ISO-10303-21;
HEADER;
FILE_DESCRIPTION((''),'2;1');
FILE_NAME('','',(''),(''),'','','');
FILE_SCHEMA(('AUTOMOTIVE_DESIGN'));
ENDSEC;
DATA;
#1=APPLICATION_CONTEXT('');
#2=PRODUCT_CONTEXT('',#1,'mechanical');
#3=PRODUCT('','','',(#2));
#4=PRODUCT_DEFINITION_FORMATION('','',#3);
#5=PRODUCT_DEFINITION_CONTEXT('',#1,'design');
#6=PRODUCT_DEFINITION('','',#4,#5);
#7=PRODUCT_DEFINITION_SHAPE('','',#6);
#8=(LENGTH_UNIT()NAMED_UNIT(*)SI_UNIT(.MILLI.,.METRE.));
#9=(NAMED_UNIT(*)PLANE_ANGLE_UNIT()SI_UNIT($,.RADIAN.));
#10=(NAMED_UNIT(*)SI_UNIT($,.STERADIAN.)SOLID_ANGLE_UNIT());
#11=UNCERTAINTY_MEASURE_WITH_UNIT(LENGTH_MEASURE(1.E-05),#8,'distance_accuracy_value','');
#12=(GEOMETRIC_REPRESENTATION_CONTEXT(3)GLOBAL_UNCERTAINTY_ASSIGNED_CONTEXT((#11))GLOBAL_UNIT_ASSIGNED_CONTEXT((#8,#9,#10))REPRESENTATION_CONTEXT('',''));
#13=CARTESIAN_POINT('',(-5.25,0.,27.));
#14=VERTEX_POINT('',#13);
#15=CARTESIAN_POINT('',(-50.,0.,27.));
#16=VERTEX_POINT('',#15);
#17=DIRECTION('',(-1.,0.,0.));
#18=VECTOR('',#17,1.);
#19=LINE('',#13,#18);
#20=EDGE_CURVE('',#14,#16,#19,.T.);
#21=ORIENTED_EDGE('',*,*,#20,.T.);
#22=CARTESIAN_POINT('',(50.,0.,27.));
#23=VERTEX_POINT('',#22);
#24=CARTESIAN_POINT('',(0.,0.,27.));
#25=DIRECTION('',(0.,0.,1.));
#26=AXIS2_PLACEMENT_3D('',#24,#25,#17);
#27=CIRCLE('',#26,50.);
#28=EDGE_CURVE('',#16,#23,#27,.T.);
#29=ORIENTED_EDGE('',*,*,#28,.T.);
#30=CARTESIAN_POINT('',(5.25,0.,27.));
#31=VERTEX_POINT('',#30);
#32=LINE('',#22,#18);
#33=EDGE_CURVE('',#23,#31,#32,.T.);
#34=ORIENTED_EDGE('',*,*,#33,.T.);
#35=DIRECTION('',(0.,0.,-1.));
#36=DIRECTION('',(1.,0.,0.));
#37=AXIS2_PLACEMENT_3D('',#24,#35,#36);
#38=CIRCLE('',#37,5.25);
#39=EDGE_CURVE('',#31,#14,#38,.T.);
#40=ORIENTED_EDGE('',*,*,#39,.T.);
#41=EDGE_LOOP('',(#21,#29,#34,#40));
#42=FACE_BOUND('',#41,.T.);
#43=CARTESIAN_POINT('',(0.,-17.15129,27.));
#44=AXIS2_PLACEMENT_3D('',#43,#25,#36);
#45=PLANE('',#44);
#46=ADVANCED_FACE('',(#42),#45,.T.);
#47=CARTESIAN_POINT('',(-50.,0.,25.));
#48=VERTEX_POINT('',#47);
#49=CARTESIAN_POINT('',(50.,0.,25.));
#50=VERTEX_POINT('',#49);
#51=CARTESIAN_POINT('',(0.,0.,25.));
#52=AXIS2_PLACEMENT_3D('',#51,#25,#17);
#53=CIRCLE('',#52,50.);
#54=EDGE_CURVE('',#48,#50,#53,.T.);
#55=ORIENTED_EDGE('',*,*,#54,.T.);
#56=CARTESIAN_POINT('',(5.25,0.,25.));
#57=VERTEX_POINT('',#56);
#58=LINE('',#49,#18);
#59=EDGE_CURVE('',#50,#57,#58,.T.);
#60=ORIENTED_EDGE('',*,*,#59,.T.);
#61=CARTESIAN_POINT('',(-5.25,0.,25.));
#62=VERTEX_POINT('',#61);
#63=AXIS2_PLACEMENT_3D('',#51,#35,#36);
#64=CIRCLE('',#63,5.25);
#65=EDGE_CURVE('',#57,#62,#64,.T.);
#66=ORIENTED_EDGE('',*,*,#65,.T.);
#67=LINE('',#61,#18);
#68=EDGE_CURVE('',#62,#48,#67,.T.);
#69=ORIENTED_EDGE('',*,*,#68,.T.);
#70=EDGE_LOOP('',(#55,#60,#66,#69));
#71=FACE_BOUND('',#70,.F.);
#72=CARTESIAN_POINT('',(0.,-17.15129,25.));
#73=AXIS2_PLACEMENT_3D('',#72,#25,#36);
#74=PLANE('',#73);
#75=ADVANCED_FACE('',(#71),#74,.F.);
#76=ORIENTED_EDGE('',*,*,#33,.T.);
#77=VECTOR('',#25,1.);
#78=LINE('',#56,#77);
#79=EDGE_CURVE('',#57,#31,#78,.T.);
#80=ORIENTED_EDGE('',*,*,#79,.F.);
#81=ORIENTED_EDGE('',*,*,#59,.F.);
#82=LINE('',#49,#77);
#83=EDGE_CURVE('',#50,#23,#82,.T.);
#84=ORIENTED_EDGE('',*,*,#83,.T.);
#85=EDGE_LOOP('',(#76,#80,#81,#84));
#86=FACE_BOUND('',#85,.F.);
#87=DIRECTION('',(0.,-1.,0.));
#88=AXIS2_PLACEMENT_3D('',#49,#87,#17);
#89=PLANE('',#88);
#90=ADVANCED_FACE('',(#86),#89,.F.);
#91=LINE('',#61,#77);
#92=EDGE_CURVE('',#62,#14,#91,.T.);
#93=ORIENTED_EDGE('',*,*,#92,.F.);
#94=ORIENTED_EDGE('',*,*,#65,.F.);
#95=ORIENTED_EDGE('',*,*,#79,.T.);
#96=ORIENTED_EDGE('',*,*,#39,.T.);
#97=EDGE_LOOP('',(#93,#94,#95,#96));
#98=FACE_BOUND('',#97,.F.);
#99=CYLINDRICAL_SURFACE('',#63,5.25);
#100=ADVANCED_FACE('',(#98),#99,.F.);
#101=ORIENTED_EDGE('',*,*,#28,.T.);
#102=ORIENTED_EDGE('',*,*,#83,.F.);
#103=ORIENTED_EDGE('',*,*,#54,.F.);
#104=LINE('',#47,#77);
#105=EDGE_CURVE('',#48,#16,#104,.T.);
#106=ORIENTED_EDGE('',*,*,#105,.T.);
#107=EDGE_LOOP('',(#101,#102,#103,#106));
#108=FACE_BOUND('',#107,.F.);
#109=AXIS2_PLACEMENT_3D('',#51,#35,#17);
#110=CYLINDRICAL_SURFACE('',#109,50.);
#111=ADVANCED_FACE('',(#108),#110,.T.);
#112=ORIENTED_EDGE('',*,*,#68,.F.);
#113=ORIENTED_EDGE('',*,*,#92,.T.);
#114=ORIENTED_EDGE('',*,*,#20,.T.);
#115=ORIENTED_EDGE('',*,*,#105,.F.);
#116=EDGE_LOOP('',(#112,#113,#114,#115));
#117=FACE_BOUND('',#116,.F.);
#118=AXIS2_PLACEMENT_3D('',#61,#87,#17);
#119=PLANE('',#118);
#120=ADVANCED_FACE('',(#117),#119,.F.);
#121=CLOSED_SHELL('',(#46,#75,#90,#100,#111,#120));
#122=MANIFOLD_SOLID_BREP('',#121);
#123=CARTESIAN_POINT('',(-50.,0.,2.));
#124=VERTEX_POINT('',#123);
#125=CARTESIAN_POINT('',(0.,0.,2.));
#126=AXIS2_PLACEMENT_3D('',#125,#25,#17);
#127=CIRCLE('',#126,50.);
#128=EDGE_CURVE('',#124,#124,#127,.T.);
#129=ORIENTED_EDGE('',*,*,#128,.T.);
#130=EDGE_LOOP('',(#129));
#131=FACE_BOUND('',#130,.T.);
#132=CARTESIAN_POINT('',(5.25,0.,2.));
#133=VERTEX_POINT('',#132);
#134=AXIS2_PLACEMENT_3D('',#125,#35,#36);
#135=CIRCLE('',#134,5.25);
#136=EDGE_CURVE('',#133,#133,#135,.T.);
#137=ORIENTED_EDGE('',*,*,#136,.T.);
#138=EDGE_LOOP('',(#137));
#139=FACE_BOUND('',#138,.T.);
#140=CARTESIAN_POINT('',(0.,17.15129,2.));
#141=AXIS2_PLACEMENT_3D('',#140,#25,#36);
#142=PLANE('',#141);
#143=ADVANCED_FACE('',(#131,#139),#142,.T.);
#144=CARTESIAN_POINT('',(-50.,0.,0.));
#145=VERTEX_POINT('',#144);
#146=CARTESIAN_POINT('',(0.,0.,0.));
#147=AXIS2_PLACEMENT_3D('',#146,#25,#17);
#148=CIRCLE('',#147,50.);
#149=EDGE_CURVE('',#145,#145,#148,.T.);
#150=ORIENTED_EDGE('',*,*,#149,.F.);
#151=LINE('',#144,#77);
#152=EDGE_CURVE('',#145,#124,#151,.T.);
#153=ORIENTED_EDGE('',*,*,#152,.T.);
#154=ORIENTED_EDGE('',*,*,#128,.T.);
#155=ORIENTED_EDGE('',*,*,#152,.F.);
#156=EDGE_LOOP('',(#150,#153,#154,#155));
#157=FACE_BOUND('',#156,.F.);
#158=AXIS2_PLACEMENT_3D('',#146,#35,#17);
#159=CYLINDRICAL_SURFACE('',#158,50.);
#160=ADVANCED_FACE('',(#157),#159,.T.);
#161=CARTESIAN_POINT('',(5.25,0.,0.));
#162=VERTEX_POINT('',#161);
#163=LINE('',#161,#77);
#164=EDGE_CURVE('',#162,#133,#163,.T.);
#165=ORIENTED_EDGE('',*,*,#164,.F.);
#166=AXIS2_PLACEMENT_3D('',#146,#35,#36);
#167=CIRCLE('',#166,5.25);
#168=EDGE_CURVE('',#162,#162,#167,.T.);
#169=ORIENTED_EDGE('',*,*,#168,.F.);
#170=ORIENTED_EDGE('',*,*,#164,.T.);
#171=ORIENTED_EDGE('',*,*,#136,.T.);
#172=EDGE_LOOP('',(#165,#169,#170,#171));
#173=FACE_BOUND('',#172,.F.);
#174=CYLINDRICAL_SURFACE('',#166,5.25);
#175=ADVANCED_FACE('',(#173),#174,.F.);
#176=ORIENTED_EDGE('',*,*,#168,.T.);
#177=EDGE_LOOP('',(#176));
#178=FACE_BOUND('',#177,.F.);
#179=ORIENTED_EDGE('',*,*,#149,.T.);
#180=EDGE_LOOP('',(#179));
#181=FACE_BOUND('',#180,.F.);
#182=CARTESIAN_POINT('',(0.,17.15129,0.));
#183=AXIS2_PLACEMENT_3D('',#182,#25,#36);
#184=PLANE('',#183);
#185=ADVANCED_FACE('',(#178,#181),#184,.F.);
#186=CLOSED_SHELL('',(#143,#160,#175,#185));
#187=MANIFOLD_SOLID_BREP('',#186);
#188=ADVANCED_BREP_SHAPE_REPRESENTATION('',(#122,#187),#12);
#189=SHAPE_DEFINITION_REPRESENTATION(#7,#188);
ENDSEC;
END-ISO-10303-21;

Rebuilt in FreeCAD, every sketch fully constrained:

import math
import FreeCAD as App
import Part
import Sketcher

doc = App.newDocument("Part")
body = doc.addObject("PartDesign::Body", "Body")

# Sketch on XY plane
sketch1 = body.newObject("Sketcher::SketchObject", "Sketch")
sketch1.AttachmentSupport = (doc.getObject("XY_Plane"), [""])
sketch1.MapMode = "FlatFace"
sketch1.AttachmentOffset = App.Placement(App.Vector(0, 0, 25), App.Rotation())
sketch1.addGeometry(Part.ArcOfCircle(Part.Circle(App.Vector(0, 0, 0), App.Vector(0, 0, 1), 5), math.radians(180), math.radians(360)), False)
sketch1.addGeometry(Part.LineSegment(App.Vector(-5, 0, 0), App.Vector(-50, 0, 0)), False)
sketch1.addGeometry(Part.ArcOfCircle(Part.Circle(App.Vector(0, 0, 0), App.Vector(0, 0, 1), 50), math.radians(180), math.radians(360)), False)
sketch1.addGeometry(Part.LineSegment(App.Vector(50, 0, 0), App.Vector(5, 0, 0)), False)
sketch1.addConstraint(Sketcher.Constraint("Coincident", 0, 1, 1, 1))
sketch1.addConstraint(Sketcher.Constraint("Coincident", 1, 2, 2, 1))
sketch1.addConstraint(Sketcher.Constraint("Coincident", 2, 2, 3, 1))
sketch1.addConstraint(Sketcher.Constraint("Coincident", 3, 2, 0, 2))
sketch1.addConstraint(Sketcher.Constraint("Horizontal", 1))
sketch1.addConstraint(Sketcher.Constraint("Horizontal", 3))
sketch1.addConstraint(Sketcher.Constraint("Coincident", 0, 3, -1, 1))
sketch1.addConstraint(Sketcher.Constraint("Coincident", 2, 3, -1, 1))
sketch1.addConstraint(Sketcher.Constraint("PointOnObject", 0, 1, -1))
sketch1.addConstraint(Sketcher.Constraint("PointOnObject", 2, 2, -1))
sketch1.addConstraint(Sketcher.Constraint("Radius", 2, 50.0))
sketch1.addConstraint(Sketcher.Constraint("Radius", 0, 5.25))
pad1 = body.newObject("PartDesign::Pad", "Pad")
pad1.Profile = sketch1
pad1.Length = 2
body2 = doc.addObject("PartDesign::Body", "Body001")

# Sketch on XY plane
sketch2 = body2.newObject("Sketcher::SketchObject", "Sketch001")
sketch2.AttachmentSupport = (doc.getObject("XY_Plane001"), [""])
sketch2.MapMode = "FlatFace"
sketch2.addGeometry(Part.Circle(App.Vector(0, 0, 0), App.Vector(0, 0, 1), 50), False)
sketch2.addGeometry(Part.Circle(App.Vector(0, 0, 0), App.Vector(0, 0, 1), 5), False)
sketch2.addConstraint(Sketcher.Constraint("Coincident", 0, 3, -1, 1))
sketch2.addConstraint(Sketcher.Constraint("Coincident", 1, 3, -1, 1))
sketch2.addConstraint(Sketcher.Constraint("Diameter", 0, 100.0))
sketch2.addConstraint(Sketcher.Constraint("Diameter", 1, 10.5))
pad2 = body2.newObject("PartDesign::Pad", "Pad001")
pad2.Profile = sketch2
pad2.Length = 2

doc.recompute()
